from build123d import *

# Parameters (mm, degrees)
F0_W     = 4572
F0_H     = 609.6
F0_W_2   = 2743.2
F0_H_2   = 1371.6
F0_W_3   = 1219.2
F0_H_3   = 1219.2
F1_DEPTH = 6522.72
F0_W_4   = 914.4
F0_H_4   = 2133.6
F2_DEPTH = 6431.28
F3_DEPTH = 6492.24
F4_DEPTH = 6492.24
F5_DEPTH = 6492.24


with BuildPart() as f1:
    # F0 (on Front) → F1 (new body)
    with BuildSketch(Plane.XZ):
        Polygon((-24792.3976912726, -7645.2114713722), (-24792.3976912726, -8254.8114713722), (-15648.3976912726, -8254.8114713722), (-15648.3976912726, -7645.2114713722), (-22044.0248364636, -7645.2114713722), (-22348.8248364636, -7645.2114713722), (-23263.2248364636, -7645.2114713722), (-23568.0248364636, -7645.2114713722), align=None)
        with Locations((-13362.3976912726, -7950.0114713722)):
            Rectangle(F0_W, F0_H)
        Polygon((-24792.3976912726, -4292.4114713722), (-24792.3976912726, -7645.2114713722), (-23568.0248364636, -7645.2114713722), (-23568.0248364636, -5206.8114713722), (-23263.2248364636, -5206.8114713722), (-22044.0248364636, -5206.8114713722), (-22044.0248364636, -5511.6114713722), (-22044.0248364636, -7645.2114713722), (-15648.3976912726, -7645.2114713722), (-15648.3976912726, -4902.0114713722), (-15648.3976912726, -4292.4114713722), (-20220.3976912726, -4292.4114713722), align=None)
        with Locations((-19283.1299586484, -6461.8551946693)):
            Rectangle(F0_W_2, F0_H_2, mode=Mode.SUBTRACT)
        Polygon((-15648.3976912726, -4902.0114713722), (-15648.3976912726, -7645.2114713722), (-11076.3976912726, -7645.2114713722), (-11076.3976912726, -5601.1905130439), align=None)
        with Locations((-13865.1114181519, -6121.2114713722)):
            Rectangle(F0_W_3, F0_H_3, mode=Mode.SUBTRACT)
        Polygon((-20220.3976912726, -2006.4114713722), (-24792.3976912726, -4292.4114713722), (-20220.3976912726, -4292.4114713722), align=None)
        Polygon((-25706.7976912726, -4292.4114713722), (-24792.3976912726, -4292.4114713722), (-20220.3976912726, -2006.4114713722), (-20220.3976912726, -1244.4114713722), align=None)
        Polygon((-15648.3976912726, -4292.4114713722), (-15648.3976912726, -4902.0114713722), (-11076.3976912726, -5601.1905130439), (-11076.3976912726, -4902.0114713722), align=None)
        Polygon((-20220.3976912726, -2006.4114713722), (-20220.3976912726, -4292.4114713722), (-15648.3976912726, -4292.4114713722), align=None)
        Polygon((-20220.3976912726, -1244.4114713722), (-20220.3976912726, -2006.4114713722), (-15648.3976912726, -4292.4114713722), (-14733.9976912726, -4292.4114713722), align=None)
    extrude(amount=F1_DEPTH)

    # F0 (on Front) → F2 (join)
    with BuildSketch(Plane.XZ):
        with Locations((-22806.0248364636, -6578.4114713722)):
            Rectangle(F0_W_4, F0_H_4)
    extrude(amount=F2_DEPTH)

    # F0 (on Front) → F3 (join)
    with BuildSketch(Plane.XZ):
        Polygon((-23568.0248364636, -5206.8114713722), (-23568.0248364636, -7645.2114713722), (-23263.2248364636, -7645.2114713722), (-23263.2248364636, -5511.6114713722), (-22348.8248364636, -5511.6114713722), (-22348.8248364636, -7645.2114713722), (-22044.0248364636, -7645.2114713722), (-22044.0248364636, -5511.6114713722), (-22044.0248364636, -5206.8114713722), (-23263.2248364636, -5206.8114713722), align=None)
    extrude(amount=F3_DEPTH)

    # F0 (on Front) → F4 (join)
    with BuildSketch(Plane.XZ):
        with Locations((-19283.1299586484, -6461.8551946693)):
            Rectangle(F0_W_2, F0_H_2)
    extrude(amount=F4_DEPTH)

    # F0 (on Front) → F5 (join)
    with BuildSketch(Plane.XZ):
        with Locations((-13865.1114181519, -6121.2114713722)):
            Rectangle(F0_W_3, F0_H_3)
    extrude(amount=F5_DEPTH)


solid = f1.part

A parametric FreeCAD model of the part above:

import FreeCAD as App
import Part
import Sketcher

V = App.Vector
Q = App.Units.Quantity

doc = App.newDocument("Part")
body = doc.addObject("PartDesign::Body", "Body")

sketch1 = body.newObject("Sketcher::SketchObject", "Sketch")
sketch1.AttachmentSupport = (doc.getObject("XZ_Plane"), [""])
sketch1.MapMode = "FlatFace"
sketch1.addGeometry([
    Part.LineSegment(V(-24792, -8255, 0), V(-11076, -8255, 0)),
    Part.LineSegment(V(-11076, -8255, 0), V(-11076, -4902, 0)),
    Part.LineSegment(V(-11076, -4902, 0), V(-15648, -4292, 0)),
    Part.LineSegment(V(-15648, -4292, 0), V(-14734, -4292, 0)),
    Part.LineSegment(V(-14734, -4292, 0), V(-20220, -1244, 0)),
    Part.LineSegment(V(-20220, -1244, 0), V(-25707, -4292, 0)),
    Part.LineSegment(V(-25707, -4292, 0), V(-24792, -4292, 0)),
    Part.LineSegment(V(-24792, -4292, 0), V(-24792, -8255, 0)),
    Part.LineSegment(V(-17912, -7148, 0), V(-20655, -7148, 0)),
    Part.LineSegment(V(-20655, -7148, 0), V(-20655, -5776, 0)),
    Part.LineSegment(V(-20655, -5776, 0), V(-17912, -5776, 0)),
    Part.LineSegment(V(-17912, -5776, 0), V(-17912, -7148, 0)),
    Part.LineSegment(V(-22044, -7645, 0), V(-23568, -7645, 0)),
    Part.LineSegment(V(-23568, -7645, 0), V(-23568, -5207, 0)),
    Part.LineSegment(V(-23568, -5207, 0), V(-22044, -5207, 0)),
    Part.LineSegment(V(-22044, -5207, 0), V(-22044, -7645, 0)),
    Part.LineSegment(V(-13256, -6731, 0), V(-14475, -6731, 0)),
    Part.LineSegment(V(-14475, -6731, 0), V(-14475, -5512, 0)),
    Part.LineSegment(V(-14475, -5512, 0), V(-13256, -5512, 0)),
    Part.LineSegment(V(-13256, -5512, 0), V(-13256, -6731, 0)),
], False)
sketch1.addConstraint([
    Sketcher.Constraint("Coincident", 0, 2, 1, 1),
    Sketcher.Constraint("Coincident", 1, 2, 2, 1),
    Sketcher.Constraint("Coincident", 2, 2, 3, 1),
    Sketcher.Constraint("Coincident", 3, 2, 4, 1),
    Sketcher.Constraint("Coincident", 4, 2, 5, 1),
    Sketcher.Constraint("Coincident", 5, 2, 6, 1),
    Sketcher.Constraint("Coincident", 6, 2, 7, 1),
    Sketcher.Constraint("Coincident", 7, 2, 0, 1),
    Sketcher.Constraint("Coincident", 8, 2, 9, 1),
    Sketcher.Constraint("Coincident", 9, 2, 10, 1),
    Sketcher.Constraint("Coincident", 10, 2, 11, 1),
    Sketcher.Constraint("Coincident", 11, 2, 8, 1),
    Sketcher.Constraint("Coincident", 12, 2, 13, 1),
    Sketcher.Constraint("Coincident", 13, 2, 14, 1),
    Sketcher.Constraint("Coincident", 14, 2, 15, 1),
    Sketcher.Constraint("Coincident", 15, 2, 12, 1),
    Sketcher.Constraint("Coincident", 16, 2, 17, 1),
    Sketcher.Constraint("Coincident", 17, 2, 18, 1),
    Sketcher.Constraint("Coincident", 18, 2, 19, 1),
    Sketcher.Constraint("Coincident", 19, 2, 16, 1),
    Sketcher.Constraint("Horizontal", 0),
    Sketcher.Constraint("Vertical", 1),
    Sketcher.Constraint("Horizontal", 3),
    Sketcher.Constraint("Horizontal", 6),
    Sketcher.Constraint("Vertical", 7),
    Sketcher.Constraint("Horizontal", 8),
    Sketcher.Constraint("Vertical", 9),
    Sketcher.Constraint("Horizontal", 10),
    Sketcher.Constraint("Vertical", 11),
    Sketcher.Constraint("Horizontal", 12),
    Sketcher.Constraint("Vertical", 13),
    Sketcher.Constraint("Horizontal", 14),
    Sketcher.Constraint("Vertical", 15),
    Sketcher.Constraint("Horizontal", 16),
    Sketcher.Constraint("Vertical", 17),
    Sketcher.Constraint("Horizontal", 18),
    Sketcher.Constraint("Vertical", 19),
    Sketcher.Constraint("Horizontal", 3, 2, 5, 2),
    Sketcher.Constraint("Equal", 3, 6),
    Sketcher.Constraint("Equal", 18, 17),
    Sketcher.Constraint("Equal", 4, 5),
    Sketcher.Constraint("DistanceX", 0, 1, 0, 2, Q("540 in")),
    Sketcher.Constraint("DistanceX", 3, 1, 3, 2, Q("36 in")),
    Sketcher.Constraint("DistanceX", 8, 2, 8, 1, Q("108 in")),
    Sketcher.Constraint("DistanceX", 12, 2, 12, 1, Q("60 in")),
    Sketcher.Constraint("DistanceX", 16, 2, 16, 1, Q("48 in")),
    Sketcher.Constraint("DistanceY", 1, 1, 1, 2, Q("132 in")),
    Sketcher.Constraint("DistanceY", 7, 2, 7, 1, Q("156 in")),
    Sketcher.Constraint("DistanceY", 9, 1, 9, 2, Q("54 in")),
    Sketcher.Constraint("DistanceY", 13, 1, 13, 2, Q("96 in")),
    Sketcher.Constraint("DistanceX", 2, 2, 1, 2, Q("180 in")),
    Sketcher.Constraint("DistanceY", 2, 2, 4, 2, Q("120 in")),
    Sketcher.Constraint("DistanceY", 7, 2, 12, 2, Q("24 in")),
    Sketcher.Constraint("DistanceY", 16, 2, 3, 2, Q("96 in")),
    Sketcher.Constraint("DistanceX", 0, 2, -1, 1, 11076.397691),
    Sketcher.Constraint("DistanceY", 0, 2, -1, 1, 8254.811471),
    Sketcher.Constraint("DistanceX", 8, 2, -1, 1, 20654.729959),
    Sketcher.Constraint("DistanceX", 16, 2, -1, 1, 14474.711418),
    Sketcher.Constraint("DistanceY", 8, 2, -1, 1, 7147.655195),
    Sketcher.Constraint("DistanceX", 12, 2, -1, 1, 23568.024836),
])
pad1 = body.newObject("PartDesign::Pad", "Pad")
pad1.Profile = sketch1
pad1.Length = Q("256.8 in")

sketch2 = body.newObject("Sketcher::SketchObject", "Sketch001")
sketch2.AttachmentSupport = (doc.getObject("XZ_Plane"), [""])
sketch2.MapMode = "FlatFace"
sketch2.addGeometry([
    Part.LineSegment(V(-23263, -5512, 0), V(-23263, -7645, 0)),
    Part.LineSegment(V(-23263, -7645, 0), V(-22349, -7645, 0)),
    Part.LineSegment(V(-22349, -7645, 0), V(-22349, -5512, 0)),
    Part.LineSegment(V(-22349, -5512, 0), V(-23263, -5512, 0)),
], False)
sketch2.addConstraint([
    Sketcher.Constraint("Coincident", 0, 2, 1, 1),
    Sketcher.Constraint("Coincident", 1, 2, 2, 1),
    Sketcher.Constraint("Coincident", 2, 2, 3, 1),
    Sketcher.Constraint("Coincident", 3, 2, 0, 1),
    Sketcher.Constraint("Vertical", 0),
    Sketcher.Constraint("Horizontal", 1),
    Sketcher.Constraint("Vertical", 2),
    Sketcher.Constraint("Horizontal", 3),
    Sketcher.Constraint("DistanceX", 1, 1, 1, 2, Q("36 in")),
    Sketcher.Constraint("DistanceY", 0, 2, 0, 1, Q("84 in")),
    Sketcher.Constraint("DistanceY", 0, 2, -1, 1, 7645.211471),
    Sketcher.Constraint("DistanceX", 0, 2, -1, 1, 23263.224836),
])
pad2 = body.newObject("PartDesign::Pad", "Pad001")
pad2.Profile = sketch2
pad2.Length = Q("253.2 in")

sketch3 = body.newObject("Sketcher::SketchObject", "Sketch002")
sketch3.AttachmentSupport = (doc.getObject("XZ_Plane"), [""])
sketch3.MapMode = "FlatFace"
sketch3.addGeometry([
    Part.LineSegment(V(-23568, -5207, 0), V(-23568, -7645, 0)),
    Part.LineSegment(V(-23568, -7645, 0), V(-23263, -7645, 0)),
    Part.LineSegment(V(-23263, -7645, 0), V(-23263, -5512, 0)),
    Part.LineSegment(V(-23263, -5512, 0), V(-22349, -5512, 0)),
    Part.LineSegment(V(-22349, -5512, 0), V(-22349, -7645, 0)),
    Part.LineSegment(V(-22349, -7645, 0), V(-22044, -7645, 0)),
    Part.LineSegment(V(-22044, -7645, 0), V(-22044, -5207, 0)),
    Part.LineSegment(V(-22044, -5207, 0), V(-23568, -5207, 0)),
], False)
sketch3.addConstraint([
    Sketcher.Constraint("Coincident", 0, 2, 1, 1),
    Sketcher.Constraint("Coincident", 1, 2, 2, 1),
    Sketcher.Constraint("Coincident", 2, 2, 3, 1),
    Sketcher.Constraint("Coincident", 3, 2, 4, 1),
    Sketcher.Constraint("Coincident", 4, 2, 5, 1),
    Sketcher.Constraint("Coincident", 5, 2, 6, 1),
    Sketcher.Constraint("Coincident", 6, 2, 7, 1),
    Sketcher.Constraint("Coincident", 7, 2, 0, 1),
    Sketcher.Constraint("Vertical", 0),
    Sketcher.Constraint("Horizontal", 1),
    Sketcher.Constraint("Vertical", 2),
    Sketcher.Constraint("Horizontal", 3),
    Sketcher.Constraint("Vertical", 4),
    Sketcher.Constraint("Horizontal", 5),
    Sketcher.Constraint("Vertical", 6),
    Sketcher.Constraint("Horizontal", 7),
    Sketcher.Constraint("Horizontal", 1, 2, 4, 2),
    Sketcher.Constraint("Equal", 1, 5),
    Sketcher.Constraint("DistanceX", 1, 1, 1, 2, Q("12 in")),
    Sketcher.Constraint("DistanceX", 3, 1, 3, 2, Q("36 in")),
    Sketcher.Constraint("DistanceY", 0, 2, 0, 1, Q("96 in")),
    Sketcher.Constraint("DistanceY", 2, 1, 2, 2, Q("84 in")),
    Sketcher.Constraint("DistanceY", 0, 2, -1, 1, 7645.211471),
    Sketcher.Constraint("DistanceX", 0, 2, -1, 1, 23568.024836),
])
pad3 = body.newObject("PartDesign::Pad", "Pad002")
pad3.Profile = sketch3
pad3.Length = Q("255.6 in")

sketch4 = body.newObject("Sketcher::SketchObject", "Sketch003")
sketch4.AttachmentSupport = (doc.getObject("XZ_Plane"), [""])
sketch4.MapMode = "FlatFace"
sketch4.addGeometry([
    Part.LineSegment(V(-20655, -5776, 0), V(-20655, -7148, 0)),
    Part.LineSegment(V(-20655, -7148, 0), V(-17912, -7148, 0)),
    Part.LineSegment(V(-17912, -7148, 0), V(-17912, -5776, 0)),
    Part.LineSegment(V(-17912, -5776, 0), V(-20655, -5776, 0)),
], False)
sketch4.addConstraint([
    Sketcher.Constraint("Coincident", 0, 2, 1, 1),
    Sketcher.Constraint("Coincident", 1, 2, 2, 1),
    Sketcher.Constraint("Coincident", 2, 2, 3, 1),
    Sketcher.Constraint("Coincident", 3, 2, 0, 1),
    Sketcher.Constraint("Vertical", 0),
    Sketcher.Constraint("Horizontal", 1),
    Sketcher.Constraint("Vertical", 2),
    Sketcher.Constraint("Horizontal", 3),
    Sketcher.Constraint("DistanceX", 1, 1, 1, 2, Q("108 in")),
    Sketcher.Constraint("DistanceY", 0, 2, 0, 1, Q("54 in")),
    Sketcher.Constraint("DistanceX", 0, 2, -1, 1, 20654.729959),
    Sketcher.Constraint("DistanceY", 0, 2, -1, 1, 7147.655195),
])
pad4 = body.newObject("PartDesign::Pad", "Pad003")
pad4.Profile = sketch4
pad4.Length = Q("255.6 in")

sketch5 = body.newObject("Sketcher::SketchObject", "Sketch004")
sketch5.AttachmentSupport = (doc.getObject("XZ_Plane"), [""])
sketch5.MapMode = "FlatFace"
sketch5.addGeometry([
    Part.LineSegment(V(-14475, -5512, 0), V(-14475, -6731, 0)),
    Part.LineSegment(V(-14475, -6731, 0), V(-13256, -6731, 0)),
    Part.LineSegment(V(-13256, -6731, 0), V(-13256, -5512, 0)),
    Part.LineSegment(V(-13256, -5512, 0), V(-14475, -5512, 0)),
], False)
sketch5.addConstraint([
    Sketcher.Constraint("Coincident", 0, 2, 1, 1),
    Sketcher.Constraint("Coincident", 1, 2, 2, 1),
    Sketcher.Constraint("Coincident", 2, 2, 3, 1),
    Sketcher.Constraint("Coincident", 3, 2, 0, 1),
    Sketcher.Constraint("Vertical", 0),
    Sketcher.Constraint("Horizontal", 1),
    Sketcher.Constraint("Vertical", 2),
    Sketcher.Constraint("Horizontal", 3),
    Sketcher.Constraint("Equal", 3, 0),
    Sketcher.Constraint("DistanceX", 1, 1, 1, 2, Q("48 in")),
    Sketcher.Constraint("DistanceX", 0, 2, -1, 1, 14474.711418),
    Sketcher.Constraint("DistanceY", 0, 2, -1, 1, 6730.811471),
])
pad5 = body.newObject("PartDesign::Pad", "Pad004")
pad5.Profile = sketch5
pad5.Length = Q("255.6 in")

doc.recompute()
